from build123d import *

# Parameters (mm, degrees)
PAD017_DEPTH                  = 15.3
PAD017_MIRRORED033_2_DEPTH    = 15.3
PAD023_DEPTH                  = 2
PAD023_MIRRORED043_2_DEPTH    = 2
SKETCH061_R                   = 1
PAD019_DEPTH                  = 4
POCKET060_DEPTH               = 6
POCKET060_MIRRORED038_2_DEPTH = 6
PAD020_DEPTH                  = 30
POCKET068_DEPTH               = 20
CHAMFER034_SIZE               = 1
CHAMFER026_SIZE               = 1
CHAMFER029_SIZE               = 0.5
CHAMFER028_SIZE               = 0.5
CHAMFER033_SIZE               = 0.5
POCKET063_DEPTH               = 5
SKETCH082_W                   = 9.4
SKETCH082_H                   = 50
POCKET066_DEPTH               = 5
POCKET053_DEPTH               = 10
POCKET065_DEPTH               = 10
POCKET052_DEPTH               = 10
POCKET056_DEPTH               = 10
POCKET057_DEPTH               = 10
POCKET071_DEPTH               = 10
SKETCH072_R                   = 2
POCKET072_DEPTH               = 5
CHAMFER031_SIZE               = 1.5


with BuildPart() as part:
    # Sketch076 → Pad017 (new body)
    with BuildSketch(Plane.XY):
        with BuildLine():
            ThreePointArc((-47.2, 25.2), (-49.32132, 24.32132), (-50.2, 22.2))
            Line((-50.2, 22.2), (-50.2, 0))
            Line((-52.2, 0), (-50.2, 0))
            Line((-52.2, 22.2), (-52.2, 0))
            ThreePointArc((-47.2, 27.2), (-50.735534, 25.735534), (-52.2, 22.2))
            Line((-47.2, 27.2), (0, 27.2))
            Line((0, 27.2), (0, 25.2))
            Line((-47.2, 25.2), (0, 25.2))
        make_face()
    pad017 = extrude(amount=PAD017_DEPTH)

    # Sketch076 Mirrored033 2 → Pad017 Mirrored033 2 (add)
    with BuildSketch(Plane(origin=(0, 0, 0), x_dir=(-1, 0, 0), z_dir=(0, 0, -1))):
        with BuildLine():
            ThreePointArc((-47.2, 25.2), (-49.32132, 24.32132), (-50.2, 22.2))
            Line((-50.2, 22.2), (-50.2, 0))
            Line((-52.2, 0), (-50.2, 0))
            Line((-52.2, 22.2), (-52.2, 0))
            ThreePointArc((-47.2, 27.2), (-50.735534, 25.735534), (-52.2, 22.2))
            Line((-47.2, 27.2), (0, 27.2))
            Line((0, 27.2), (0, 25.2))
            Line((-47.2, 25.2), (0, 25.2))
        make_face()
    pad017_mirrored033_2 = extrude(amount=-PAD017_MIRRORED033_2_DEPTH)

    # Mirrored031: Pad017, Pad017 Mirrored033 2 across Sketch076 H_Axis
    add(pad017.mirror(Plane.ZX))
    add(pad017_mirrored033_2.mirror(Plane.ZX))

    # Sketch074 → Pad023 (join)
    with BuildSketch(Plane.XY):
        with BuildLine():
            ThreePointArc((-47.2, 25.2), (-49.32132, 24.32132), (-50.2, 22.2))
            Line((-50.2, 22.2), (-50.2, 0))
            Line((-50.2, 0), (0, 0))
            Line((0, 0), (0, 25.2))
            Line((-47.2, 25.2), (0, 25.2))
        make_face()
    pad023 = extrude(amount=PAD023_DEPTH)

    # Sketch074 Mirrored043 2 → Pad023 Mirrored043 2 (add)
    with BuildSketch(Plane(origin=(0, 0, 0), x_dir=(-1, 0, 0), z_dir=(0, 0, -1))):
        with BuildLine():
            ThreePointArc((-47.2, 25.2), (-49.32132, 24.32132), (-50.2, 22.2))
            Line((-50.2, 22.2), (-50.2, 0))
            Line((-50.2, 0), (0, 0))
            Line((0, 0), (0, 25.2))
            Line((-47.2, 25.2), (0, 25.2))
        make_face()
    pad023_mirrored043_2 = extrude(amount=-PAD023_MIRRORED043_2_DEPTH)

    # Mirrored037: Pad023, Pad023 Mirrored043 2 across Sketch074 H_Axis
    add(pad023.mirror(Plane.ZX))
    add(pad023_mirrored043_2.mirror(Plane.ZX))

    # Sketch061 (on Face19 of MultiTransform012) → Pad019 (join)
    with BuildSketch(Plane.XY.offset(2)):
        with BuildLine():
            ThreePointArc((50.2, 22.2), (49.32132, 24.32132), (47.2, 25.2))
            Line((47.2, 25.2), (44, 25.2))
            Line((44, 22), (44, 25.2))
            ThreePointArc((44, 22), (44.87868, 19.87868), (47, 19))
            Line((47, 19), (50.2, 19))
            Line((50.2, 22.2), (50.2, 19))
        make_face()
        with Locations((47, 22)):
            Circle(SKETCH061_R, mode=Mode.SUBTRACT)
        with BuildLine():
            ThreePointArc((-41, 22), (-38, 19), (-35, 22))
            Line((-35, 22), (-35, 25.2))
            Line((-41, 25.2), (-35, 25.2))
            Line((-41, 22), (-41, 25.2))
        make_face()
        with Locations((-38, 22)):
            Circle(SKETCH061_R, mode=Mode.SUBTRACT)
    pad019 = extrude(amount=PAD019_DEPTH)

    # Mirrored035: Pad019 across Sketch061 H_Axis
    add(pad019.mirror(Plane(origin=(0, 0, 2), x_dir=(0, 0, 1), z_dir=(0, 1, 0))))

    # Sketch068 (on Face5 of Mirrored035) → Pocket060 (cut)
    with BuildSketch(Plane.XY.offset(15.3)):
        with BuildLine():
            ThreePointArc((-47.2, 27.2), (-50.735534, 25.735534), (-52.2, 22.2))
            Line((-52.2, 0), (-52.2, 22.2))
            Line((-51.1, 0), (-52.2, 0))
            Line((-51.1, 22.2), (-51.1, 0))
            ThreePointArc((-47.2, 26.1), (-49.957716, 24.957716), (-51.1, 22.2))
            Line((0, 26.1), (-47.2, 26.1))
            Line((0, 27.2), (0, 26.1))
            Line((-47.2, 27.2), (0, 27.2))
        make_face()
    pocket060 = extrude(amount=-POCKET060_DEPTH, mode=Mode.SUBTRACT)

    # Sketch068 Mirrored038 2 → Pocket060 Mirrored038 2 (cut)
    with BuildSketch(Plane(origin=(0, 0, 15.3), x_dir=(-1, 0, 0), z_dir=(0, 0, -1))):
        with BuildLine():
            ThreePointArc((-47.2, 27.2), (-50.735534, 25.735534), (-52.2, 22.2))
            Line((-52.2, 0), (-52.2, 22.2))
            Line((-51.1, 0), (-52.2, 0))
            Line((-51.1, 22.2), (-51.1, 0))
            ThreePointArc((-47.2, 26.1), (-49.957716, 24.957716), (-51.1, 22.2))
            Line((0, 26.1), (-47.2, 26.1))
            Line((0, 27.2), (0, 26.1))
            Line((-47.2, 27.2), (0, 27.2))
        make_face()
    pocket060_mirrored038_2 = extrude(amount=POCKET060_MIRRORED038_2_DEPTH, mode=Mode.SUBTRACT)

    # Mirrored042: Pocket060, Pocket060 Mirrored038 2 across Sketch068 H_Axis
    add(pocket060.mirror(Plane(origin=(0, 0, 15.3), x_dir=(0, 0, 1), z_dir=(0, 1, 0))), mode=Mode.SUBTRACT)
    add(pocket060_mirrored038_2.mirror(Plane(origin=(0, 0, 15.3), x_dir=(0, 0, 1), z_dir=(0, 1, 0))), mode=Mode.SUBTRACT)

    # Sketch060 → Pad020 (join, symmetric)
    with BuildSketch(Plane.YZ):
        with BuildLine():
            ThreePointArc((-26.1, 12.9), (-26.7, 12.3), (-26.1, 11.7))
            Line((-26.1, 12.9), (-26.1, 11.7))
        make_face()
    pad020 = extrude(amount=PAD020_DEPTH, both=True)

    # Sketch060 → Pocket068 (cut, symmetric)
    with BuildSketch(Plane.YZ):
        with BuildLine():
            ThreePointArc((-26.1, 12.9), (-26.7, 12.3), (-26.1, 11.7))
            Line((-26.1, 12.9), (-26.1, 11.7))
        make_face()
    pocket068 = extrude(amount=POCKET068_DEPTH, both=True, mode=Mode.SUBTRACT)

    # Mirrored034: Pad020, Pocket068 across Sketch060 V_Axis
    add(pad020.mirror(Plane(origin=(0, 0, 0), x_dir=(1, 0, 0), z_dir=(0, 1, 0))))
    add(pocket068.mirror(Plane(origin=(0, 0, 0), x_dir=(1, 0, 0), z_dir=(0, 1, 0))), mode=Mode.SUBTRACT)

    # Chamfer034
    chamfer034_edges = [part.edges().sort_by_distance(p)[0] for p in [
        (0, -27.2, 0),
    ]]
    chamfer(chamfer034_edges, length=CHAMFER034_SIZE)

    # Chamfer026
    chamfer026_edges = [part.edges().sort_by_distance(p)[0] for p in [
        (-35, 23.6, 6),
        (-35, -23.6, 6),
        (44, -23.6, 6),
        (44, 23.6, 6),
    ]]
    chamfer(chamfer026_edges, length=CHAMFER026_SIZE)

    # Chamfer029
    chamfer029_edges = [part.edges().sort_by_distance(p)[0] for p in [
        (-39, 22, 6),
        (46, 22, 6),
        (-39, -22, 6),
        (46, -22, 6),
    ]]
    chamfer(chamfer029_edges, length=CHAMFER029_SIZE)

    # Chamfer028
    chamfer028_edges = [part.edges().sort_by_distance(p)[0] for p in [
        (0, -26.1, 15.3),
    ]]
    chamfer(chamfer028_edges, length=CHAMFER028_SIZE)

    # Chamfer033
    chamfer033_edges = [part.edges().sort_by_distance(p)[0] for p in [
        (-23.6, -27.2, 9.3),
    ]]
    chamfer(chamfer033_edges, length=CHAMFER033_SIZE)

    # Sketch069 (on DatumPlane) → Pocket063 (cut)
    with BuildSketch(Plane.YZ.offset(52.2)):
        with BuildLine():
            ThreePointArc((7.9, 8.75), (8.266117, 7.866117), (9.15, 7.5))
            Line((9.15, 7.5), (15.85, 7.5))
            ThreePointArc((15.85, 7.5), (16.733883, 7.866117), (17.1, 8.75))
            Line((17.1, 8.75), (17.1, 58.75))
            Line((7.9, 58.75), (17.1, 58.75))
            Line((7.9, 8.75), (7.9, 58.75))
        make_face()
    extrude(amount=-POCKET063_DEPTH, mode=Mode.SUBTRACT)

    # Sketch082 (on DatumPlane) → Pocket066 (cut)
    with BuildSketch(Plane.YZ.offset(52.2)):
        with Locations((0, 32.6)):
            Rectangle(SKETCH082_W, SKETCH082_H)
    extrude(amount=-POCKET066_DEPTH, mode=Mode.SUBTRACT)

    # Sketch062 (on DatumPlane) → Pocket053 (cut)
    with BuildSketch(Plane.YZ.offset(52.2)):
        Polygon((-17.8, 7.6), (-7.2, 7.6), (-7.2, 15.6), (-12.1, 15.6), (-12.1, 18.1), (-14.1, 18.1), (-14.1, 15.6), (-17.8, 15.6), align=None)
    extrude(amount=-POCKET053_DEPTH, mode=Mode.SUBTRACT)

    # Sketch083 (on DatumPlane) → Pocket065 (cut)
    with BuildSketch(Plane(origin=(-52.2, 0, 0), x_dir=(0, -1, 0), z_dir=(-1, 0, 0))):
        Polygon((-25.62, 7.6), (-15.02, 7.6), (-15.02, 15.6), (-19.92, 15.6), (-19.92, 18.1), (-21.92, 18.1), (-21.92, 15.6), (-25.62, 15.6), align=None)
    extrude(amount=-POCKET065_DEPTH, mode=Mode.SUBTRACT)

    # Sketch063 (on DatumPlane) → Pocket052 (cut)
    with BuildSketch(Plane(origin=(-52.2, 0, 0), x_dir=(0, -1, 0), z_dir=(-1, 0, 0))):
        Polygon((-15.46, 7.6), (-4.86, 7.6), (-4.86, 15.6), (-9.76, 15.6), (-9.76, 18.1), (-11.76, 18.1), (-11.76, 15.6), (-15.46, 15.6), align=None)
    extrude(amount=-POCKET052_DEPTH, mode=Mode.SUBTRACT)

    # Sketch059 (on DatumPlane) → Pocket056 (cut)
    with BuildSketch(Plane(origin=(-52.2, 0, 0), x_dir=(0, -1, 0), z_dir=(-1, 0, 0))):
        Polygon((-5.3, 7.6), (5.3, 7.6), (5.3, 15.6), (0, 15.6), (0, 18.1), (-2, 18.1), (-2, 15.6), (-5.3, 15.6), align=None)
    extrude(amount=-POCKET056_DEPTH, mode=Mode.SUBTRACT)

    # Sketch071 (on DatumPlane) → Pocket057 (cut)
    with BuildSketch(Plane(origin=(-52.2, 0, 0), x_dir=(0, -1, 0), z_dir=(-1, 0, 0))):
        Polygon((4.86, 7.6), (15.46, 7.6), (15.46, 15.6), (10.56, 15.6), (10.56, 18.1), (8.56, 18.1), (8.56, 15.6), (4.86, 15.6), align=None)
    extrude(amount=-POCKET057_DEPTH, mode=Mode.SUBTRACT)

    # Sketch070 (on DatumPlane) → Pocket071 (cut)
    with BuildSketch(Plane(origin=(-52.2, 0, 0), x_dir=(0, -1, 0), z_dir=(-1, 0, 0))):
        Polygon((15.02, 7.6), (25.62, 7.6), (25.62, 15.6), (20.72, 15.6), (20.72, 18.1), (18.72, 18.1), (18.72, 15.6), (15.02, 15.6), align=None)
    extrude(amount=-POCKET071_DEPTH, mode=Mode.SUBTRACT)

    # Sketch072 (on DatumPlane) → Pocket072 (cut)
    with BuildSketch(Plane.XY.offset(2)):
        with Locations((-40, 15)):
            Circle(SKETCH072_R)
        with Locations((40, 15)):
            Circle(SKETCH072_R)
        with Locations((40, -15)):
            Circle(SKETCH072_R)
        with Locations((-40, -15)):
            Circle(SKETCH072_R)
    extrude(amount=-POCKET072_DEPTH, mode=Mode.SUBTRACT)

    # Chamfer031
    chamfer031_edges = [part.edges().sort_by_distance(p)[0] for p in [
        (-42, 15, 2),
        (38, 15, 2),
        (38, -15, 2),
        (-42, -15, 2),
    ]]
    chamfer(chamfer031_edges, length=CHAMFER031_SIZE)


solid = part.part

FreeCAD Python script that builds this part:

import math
import FreeCAD as App
import Part
import Sketcher

V = App.Vector


def edges_at(feature, points):
    """Names of the edges that pass closest to the given points."""
    edges = feature.Shape.Edges
    near = lambda p: min(range(len(edges)), key=lambda i: edges[i].distToShape(Part.Vertex(*p))[0])
    return sorted({f"Edge{near(p) + 1}" for p in points})


def add_polygon(sketch, points):
    """Adds a closed chain of lines whose ends are joined by coincident constraints."""
    first, n = sketch.GeometryCount, len(points)
    for a, b in zip(points, points[1:] + points[:1]):
        sketch.addGeometry(Part.LineSegment(App.Vector(*a, 0), App.Vector(*b, 0)), False)
    for i in range(n):
        sketch.addConstraint(Sketcher.Constraint("Coincident", first + i, 2, first + (i + 1) % n, 1))

doc = App.newDocument("Part")
body = doc.addObject("PartDesign::Body", "Body")

# Sketch on XY plane
sketch1 = doc.addObject("Sketcher::SketchObject", "Sketch")
body.addObject(sketch1)
sketch1.AttachmentSupport = (doc.XY_Plane, [""])
sketch1.MapMode = "FlatFace"
sketch1.addGeometry([
    Part.ArcOfCircle(Part.Circle(V(-47.2, 22.2, 0), V(0, 0, 1), 3), math.radians(90), math.radians(180)),  # 0
    Part.LineSegment(V(-47.2, 25.2, 0), V(0, 25.2, 0)),  # 1
    Part.LineSegment(V(0, 25.2, 0), V(0, 27.2, 0)),  # 2
    Part.LineSegment(V(0, 27.2, 0), V(-47.2, 27.2, 0)),  # 3
    Part.ArcOfCircle(Part.Circle(V(-47.2, 22.2, 0), V(0, 0, 1), 5), math.radians(90), math.radians(180)),  # 4
    Part.LineSegment(V(-52.2, 22.2, 0), V(-52.2, 0, 0)),  # 5
    Part.LineSegment(V(-52.2, 0, 0), V(-50.2, 0, 0)),  # 6
    Part.LineSegment(V(-50.2, 0, 0), V(-50.2, 22.2, 0)),  # 7
], False)
sketch1.addConstraint([
    Sketcher.Constraint("Tangent", 0, 1, 1, 1),
    Sketcher.Constraint("Coincident", 1, 2, 2, 1),
    Sketcher.Constraint("Coincident", 2, 2, 3, 1),
    Sketcher.Constraint("Tangent", 3, 2, 4, 1),
    Sketcher.Constraint("Tangent", 4, 2, 5, 1),
    Sketcher.Constraint("Coincident", 5, 2, 6, 1),
    Sketcher.Constraint("Coincident", 6, 2, 7, 1),
    Sketcher.Constraint("Tangent", 7, 2, 0, 2),
    Sketcher.Constraint("Horizontal", 1),
    Sketcher.Constraint("Vertical", 2),
    Sketcher.Constraint("Horizontal", 3),
    Sketcher.Constraint("Vertical", 5),
    Sketcher.Constraint("Horizontal", 6),
    Sketcher.Constraint("Vertical", 7),
    Sketcher.Constraint("Coincident", 4, 3, 0, 3),
    Sketcher.Constraint("PointOnObject", 1, 2, -2),
    Sketcher.Constraint("PointOnObject", 5, 2, -1),
    Sketcher.Constraint("Radius", 0, 3.000001),
    Sketcher.Constraint("Radius", 4, 5.0),
    Sketcher.Constraint("DistanceX", 1, 1, 1, 2, 47.2),
    Sketcher.Constraint("DistanceY", 5, 2, 5, 1, 22.2),
])
pad1 = doc.addObject("PartDesign::Pad", "Pad")
body.addObject(pad1)
pad1.Profile = sketch1
pad1.Length = 15.3

# Sketch on XY plane
sketch2 = doc.addObject("Sketcher::SketchObject", "Sketch001")
body.addObject(sketch2)
sketch2.AttachmentSupport = (doc.XY_Plane, [""])
sketch2.MapMode = "FlatFace"
sketch2.addGeometry([
    Part.ArcOfCircle(Part.Circle(V(47.2, 22.2, 0), V(0, 0, 1), 3), math.radians(0), math.radians(90)),  # 0
    Part.LineSegment(V(47.2, 25.2, 0), V(0, 25.2, 0)),  # 1
    Part.LineSegment(V(0, 25.2, 0), V(0, 27.2, 0)),  # 2
    Part.LineSegment(V(0, 27.2, 0), V(47.2, 27.2, 0)),  # 3
    Part.ArcOfCircle(Part.Circle(V(47.2, 22.2, 0), V(0, 0, 1), 5), math.radians(0), math.radians(90)),  # 4
    Part.LineSegment(V(52.2, 22.2, 0), V(52.2, 0, 0)),  # 5
    Part.LineSegment(V(52.2, 0, 0), V(50.2, 0, 0)),  # 6
    Part.LineSegment(V(50.2, 0, 0), V(50.2, 22.2, 0)),  # 7
], False)
sketch2.addConstraint([
    Sketcher.Constraint("Tangent", 0, 2, 1, 1),
    Sketcher.Constraint("Coincident", 1, 2, 2, 1),
    Sketcher.Constraint("Coincident", 2, 2, 3, 1),
    Sketcher.Constraint("Tangent", 3, 2, 4, 2),
    Sketcher.Constraint("Tangent", 4, 1, 5, 1),
    Sketcher.Constraint("Coincident", 5, 2, 6, 1),
    Sketcher.Constraint("Coincident", 6, 2, 7, 1),
    Sketcher.Constraint("Tangent", 7, 2, 0, 1),
    Sketcher.Constraint("Horizontal", 1),
    Sketcher.Constraint("Vertical", 2),
    Sketcher.Constraint("Horizontal", 3),
    Sketcher.Constraint("Vertical", 5),
    Sketcher.Constraint("Horizontal", 6),
    Sketcher.Constraint("Vertical", 7),
    Sketcher.Constraint("Coincident", 4, 3, 0, 3),
    Sketcher.Constraint("PointOnObject", 1, 2, -2),
    Sketcher.Constraint("PointOnObject", 5, 2, -1),
    Sketcher.Constraint("Radius", 0, 3.000001),
    Sketcher.Constraint("Radius", 4, 5.0),
    Sketcher.Constraint("DistanceX", 1, 2, 1, 1, 47.2),
    Sketcher.Constraint("DistanceY", 5, 2, 5, 1, 22.2),
])
pad2 = doc.addObject("PartDesign::Pad", "Pad001")
body.addObject(pad2)
pad2.Profile = sketch2
pad2.Length = 15.3
doc.recompute()

mirrored = doc.addObject("PartDesign::Mirrored", "Mirrored")
body.addObject(mirrored)
mirrored.Originals = [pad1, pad2]
mirrored.MirrorPlane = (doc.XZ_Plane, [""])
body.Tip = mirrored

# Sketch on XY plane
sketch3 = doc.addObject("Sketcher::SketchObject", "Sketch002")
body.addObject(sketch3)
sketch3.AttachmentSupport = (doc.XY_Plane, [""])
sketch3.MapMode = "FlatFace"
sketch3.addGeometry([
    Part.ArcOfCircle(Part.Circle(V(-47.2, 22.2, 0), V(0, 0, 1), 3), math.radians(90), math.radians(180)),  # 0
    Part.LineSegment(V(-50.2, 22.2, 0), V(-50.2, 0, 0)),  # 1
    Part.LineSegment(V(-50.2, 0, 0), V(0, 0, 0)),  # 2
    Part.LineSegment(V(0, 0, 0), V(0, 25.2, 0)),  # 3
    Part.LineSegment(V(0, 25.2, 0), V(-47.2, 25.2, 0)),  # 4
], False)
sketch3.addConstraint([
    Sketcher.Constraint("Tangent", 0, 2, 1, 1),
    Sketcher.Constraint("Coincident", 1, 2, 2, 1),
    Sketcher.Constraint("Coincident", 2, 2, 3, 1),
    Sketcher.Constraint("Coincident", 3, 2, 4, 1),
    Sketcher.Constraint("Tangent", 4, 2, 0, 1),
    Sketcher.Constraint("Vertical", 1),
    Sketcher.Constraint("Horizontal", 2),
    Sketcher.Constraint("Vertical", 3),
    Sketcher.Constraint("Horizontal", 4),
    Sketcher.Constraint("Coincident", 2, 2, -1, 1),
    Sketcher.Constraint("Radius", 0, 3.000001),
    Sketcher.Constraint("DistanceX", 2, 1, 2, 2, 50.2),
    Sketcher.Constraint("DistanceY", 1, 2, 1, 1, 22.2),
])
pad3 = doc.addObject("PartDesign::Pad", "Pad002")
body.addObject(pad3)
pad3.Profile = sketch3
pad3.Length = 2

# Sketch on XY plane
sketch4 = doc.addObject("Sketcher::SketchObject", "Sketch003")
body.addObject(sketch4)
sketch4.AttachmentSupport = (doc.XY_Plane, [""])
sketch4.MapMode = "FlatFace"
sketch4.addGeometry([
    Part.ArcOfCircle(Part.Circle(V(47.2, 22.2, 0), V(0, 0, 1), 3), math.radians(0), math.radians(90)),  # 0
    Part.LineSegment(V(50.2, 22.2, 0), V(50.2, 0, 0)),  # 1
    Part.LineSegment(V(50.2, 0, 0), V(0, 0, 0)),  # 2
    Part.LineSegment(V(0, 0, 0), V(0, 25.2, 0)),  # 3
    Part.LineSegment(V(0, 25.2, 0), V(47.2, 25.2, 0)),  # 4
], False)
sketch4.addConstraint([
    Sketcher.Constraint("Tangent", 0, 1, 1, 1),
    Sketcher.Constraint("Coincident", 1, 2, 2, 1),
    Sketcher.Constraint("Coincident", 2, 2, 3, 1),
    Sketcher.Constraint("Coincident", 3, 2, 4, 1),
    Sketcher.Constraint("Tangent", 4, 2, 0, 2),
    Sketcher.Constraint("Vertical", 1),
    Sketcher.Constraint("Horizontal", 2),
    Sketcher.Constraint("Vertical", 3),
    Sketcher.Constraint("Horizontal", 4),
    Sketcher.Constraint("Coincident", 2, 2, -1, 1),
    Sketcher.Constraint("Radius", 0, 3.000001),
    Sketcher.Constraint("DistanceX", 2, 2, 2, 1, 50.2),
    Sketcher.Constraint("DistanceY", 1, 2, 1, 1, 22.2),
])
pad4 = doc.addObject("PartDesign::Pad", "Pad003")
body.addObject(pad4)
pad4.Profile = sketch4
pad4.Length = 2
doc.recompute()

mirrored2 = doc.addObject("PartDesign::Mirrored", "Mirrored001")
body.addObject(mirrored2)
mirrored2.Originals = [pad3, pad4]
mirrored2.MirrorPlane = (doc.XZ_Plane, [""])
body.Tip = mirrored2

# Sketch on XY plane
sketch5 = doc.addObject("Sketcher::SketchObject", "Sketch004")
body.addObject(sketch5)
sketch5.AttachmentSupport = (doc.XY_Plane, [""])
sketch5.MapMode = "FlatFace"
sketch5.AttachmentOffset = App.Placement(V(0, 0, 2), App.Rotation())
sketch5.addGeometry([
    Part.ArcOfCircle(Part.Circle(V(47.2, 22.2, 0), V(0, 0, 1), 3), math.radians(0), math.radians(90)),  # 0
    Part.LineSegment(V(47.2, 25.2, 0), V(44, 25.2, 0)),  # 1
    Part.LineSegment(V(44, 25.2, 0), V(44, 22, 0)),  # 2
    Part.ArcOfCircle(Part.Circle(V(47, 22, 0), V(0, 0, 1), 3), math.radians(-180), math.radians(-90)),  # 3
    Part.LineSegment(V(47, 19, 0), V(50.2, 19, 0)),  # 4
    Part.LineSegment(V(50.2, 19, 0), V(50.2, 22.2, 0)),  # 5
    Part.Circle(V(47, 22, 0), V(0, 0, 1), 1),  # 6
    Part.ArcOfCircle(Part.Circle(V(-38, 22, 0), V(0, 0, 1), 3), math.radians(180), math.radians(360)),  # 7
    Part.LineSegment(V(-35, 22, 0), V(-35, 25.2, 0)),  # 8
    Part.LineSegment(V(-35, 25.2, 0), V(-41, 25.2, 0)),  # 9
    Part.LineSegment(V(-41, 25.2, 0), V(-41, 22, 0)),  # 10
    Part.Circle(V(-38, 22, 0), V(0, 0, 1), 1),  # 11
], False)
sketch5.addConstraint([
    Sketcher.Constraint("Tangent", 0, 2, 1, 1),
    Sketcher.Constraint("Coincident", 1, 2, 2, 1),
    Sketcher.Constraint("Tangent", 2, 2, 3, 1),
    Sketcher.Constraint("Tangent", 3, 2, 4, 1),
    Sketcher.Constraint("Coincident", 4, 2, 5, 1),
    Sketcher.Constraint("Tangent", 5, 2, 0, 1),
    Sketcher.Constraint("Tangent", 7, 2, 8, 1),
    Sketcher.Constraint("Coincident", 8, 2, 9, 1),
    Sketcher.Constraint("Coincident", 9, 2, 10, 1),
    Sketcher.Constraint("Tangent", 10, 2, 7, 1),
    Sketcher.Constraint("Horizontal", 1),
    Sketcher.Constraint("Vertical", 2),
    Sketcher.Constraint("Horizontal", 4),
    Sketcher.Constraint("Vertical", 5),
    Sketcher.Constraint("Vertical", 8),
    Sketcher.Constraint("Horizontal", 9),
    Sketcher.Constraint("Vertical", 10),
    Sketcher.Constraint("Coincident", 6, 3, 3, 3),
    Sketcher.Constraint("Coincident", 11, 3, 7, 3),
    Sketcher.Constraint("Equal", 0, 3),
    Sketcher.Constraint("Equal", 3, 7),
    Sketcher.Constraint("Equal", 6, 11),
    Sketcher.Constraint("Horizontal", 6, 3, 7, 3),
    Sketcher.Constraint("Horizontal", 1, 2, 8, 2),
    Sketcher.Constraint("Equal", 4, 2),
    Sketcher.Constraint("Diameter", 6, 2.0),
    Sketcher.Constraint("Radius", 0, 3.000001),
    Sketcher.Constraint("DistanceX", 1, 2, 1, 1, 3.2),
    Sketcher.Constraint("DistanceX", -1, 1, 3, 3, 47.000001),
    Sketcher.Constraint("DistanceY", -1, 1, 3, 3, 22.000001),
    Sketcher.Constraint("DistanceX", 7, 3, -1, 1, 38.0),
])
pad5 = doc.addObject("PartDesign::Pad", "Pad004")
body.addObject(pad5)
pad5.Profile = sketch5
pad5.Length = 4
doc.recompute()

mirrored3 = doc.addObject("PartDesign::Mirrored", "Mirrored002")
body.addObject(mirrored3)
mirrored3.Originals = [pad5]
mirrored3.MirrorPlane = (doc.XZ_Plane, [""])
body.Tip = mirrored3

# Sketch on XY plane
sketch6 = doc.addObject("Sketcher::SketchObject", "Sketch005")
body.addObject(sketch6)
sketch6.AttachmentSupport = (doc.XY_Plane, [""])
sketch6.MapMode = "FlatFace"
sketch6.AttachmentOffset = App.Placement(V(0, 0, 15.3), App.Rotation())
sketch6.addGeometry([
    Part.ArcOfCircle(Part.Circle(V(-47.2, 22.2, 0), V(0, 0, 1), 5), math.radians(90), math.radians(180)),  # 0
    Part.LineSegment(V(-52.2, 22.2, 0), V(-52.2, 0, 0)),  # 1
    Part.LineSegment(V(-52.2, 0, 0), V(-51.1, 0, 0)),  # 2
    Part.LineSegment(V(-51.1, 0, 0), V(-51.1, 22.2, 0)),  # 3
    Part.ArcOfCircle(Part.Circle(V(-47.2, 22.2, 0), V(0, 0, 1), 3.9), math.radians(90), math.radians(180)),  # 4
    Part.LineSegment(V(-47.2, 26.1, 0), V(0, 26.1, 0)),  # 5
    Part.LineSegment(V(0, 26.1, 0), V(0, 27.2, 0)),  # 6
    Part.LineSegment(V(0, 27.2, 0), V(-47.2, 27.2, 0)),  # 7
], False)
sketch6.addConstraint([
    Sketcher.Constraint("Tangent", 0, 2, 1, 1),
    Sketcher.Constraint("Coincident", 1, 2, 2, 1),
    Sketcher.Constraint("Coincident", 2, 2, 3, 1),
    Sketcher.Constraint("Tangent", 3, 2, 4, 2),
    Sketcher.Constraint("Tangent", 4, 1, 5, 1),
    Sketcher.Constraint("Coincident", 5, 2, 6, 1),
    Sketcher.Constraint("Coincident", 6, 2, 7, 1),
    Sketcher.Constraint("Tangent", 7, 2, 0, 1),
    Sketcher.Constraint("Vertical", 1),
    Sketcher.Constraint("Horizontal", 2),
    Sketcher.Constraint("Vertical", 3),
    Sketcher.Constraint("Horizontal", 5),
    Sketcher.Constraint("Vertical", 6),
    Sketcher.Constraint("Horizontal", 7),
    Sketcher.Constraint("Coincident", 4, 3, 0, 3),
    Sketcher.Constraint("PointOnObject", 1, 2, -1),
    Sketcher.Constraint("PointOnObject", 5, 2, -2),
    Sketcher.Constraint("Radius", 0, 5.0),
    Sketcher.Constraint("Radius", 4, 3.900002),
    Sketcher.Constraint("DistanceX", 5, 1, 5, 2, 47.2),
    Sketcher.Constraint("DistanceY", 1, 2, 1, 1, 22.2),
])
pocket1 = doc.addObject("PartDesign::Pocket", "Pocket")
body.addObject(pocket1)
pocket1.Profile = sketch6
pocket1.Length = 6

# Sketch on XY plane
sketch7 = doc.addObject("Sketcher::SketchObject", "Sketch006")
body.addObject(sketch7)
sketch7.AttachmentSupport = (doc.XY_Plane, [""])
sketch7.MapMode = "FlatFace"
sketch7.AttachmentOffset = App.Placement(V(0, 0, 15.3), App.Rotation())
sketch7.addGeometry([
    Part.ArcOfCircle(Part.Circle(V(47.2, 22.2, 0), V(0, 0, 1), 5), math.radians(0), math.radians(90)),  # 0
    Part.LineSegment(V(52.2, 22.2, 0), V(52.2, 0, 0)),  # 1
    Part.LineSegment(V(52.2, 0, 0), V(51.1, 0, 0)),  # 2
    Part.LineSegment(V(51.1, 0, 0), V(51.1, 22.2, 0)),  # 3
    Part.ArcOfCircle(Part.Circle(V(47.2, 22.2, 0), V(0, 0, 1), 3.9), math.radians(0), math.radians(90)),  # 4
    Part.LineSegment(V(47.2, 26.1, 0), V(0, 26.1, 0)),  # 5
    Part.LineSegment(V(0, 26.1, 0), V(0, 27.2, 0)),  # 6
    Part.LineSegment(V(0, 27.2, 0), V(47.2, 27.2, 0)),  # 7
], False)
sketch7.addConstraint([
    Sketcher.Constraint("Tangent", 0, 1, 1, 1),
    Sketcher.Constraint("Coincident", 1, 2, 2, 1),
    Sketcher.Constraint("Coincident", 2, 2, 3, 1),
    Sketcher.Constraint("Tangent", 3, 2, 4, 1),
    Sketcher.Constraint("Tangent", 4, 2, 5, 1),
    Sketcher.Constraint("Coincident", 5, 2, 6, 1),
    Sketcher.Constraint("Coincident", 6, 2, 7, 1),
    Sketcher.Constraint("Tangent", 7, 2, 0, 2),
    Sketcher.Constraint("Vertical", 1),
    Sketcher.Constraint("Horizontal", 2),
    Sketcher.Constraint("Vertical", 3),
    Sketcher.Constraint("Horizontal", 5),
    Sketcher.Constraint("Vertical", 6),
    Sketcher.Constraint("Horizontal", 7),
    Sketcher.Constraint("Coincident", 4, 3, 0, 3),
    Sketcher.Constraint("PointOnObject", 1, 2, -1),
    Sketcher.Constraint("PointOnObject", 5, 2, -2),
    Sketcher.Constraint("Radius", 0, 5.0),
    Sketcher.Constraint("Radius", 4, 3.900002),
    Sketcher.Constraint("DistanceX", 5, 2, 5, 1, 47.2),
    Sketcher.Constraint("DistanceY", 1, 2, 1, 1, 22.2),
])
pocket2 = doc.addObject("PartDesign::Pocket", "Pocket001")
body.addObject(pocket2)
pocket2.Profile = sketch7
pocket2.Length = 6
doc.recompute()

mirrored4 = doc.addObject("PartDesign::Mirrored", "Mirrored003")
body.addObject(mirrored4)
mirrored4.Originals = [pocket1, pocket2]
mirrored4.MirrorPlane = (doc.XZ_Plane, [""])
body.Tip = mirrored4

# Sketch on YZ plane
sketch8 = doc.addObject("Sketcher::SketchObject", "Sketch007")
body.addObject(sketch8)
sketch8.AttachmentSupport = (doc.YZ_Plane, [""])
sketch8.MapMode = "FlatFace"
sketch8.addGeometry([
    Part.ArcOfCircle(Part.Circle(V(-26.1, 12.3, 0), V(0, 0, 1), 0.6), math.radians(90), math.radians(270)),
    Part.LineSegment(V(-26.1, 11.7, 0), V(-26.1, 12.9, 0)),
], False)
sketch8.addConstraint([
    Sketcher.Constraint("Coincident", 0, 1, 1, 2),
    Sketcher.Constraint("Coincident", 1, 1, 0, 2),
    Sketcher.Constraint("Vertical", 1),
    Sketcher.Constraint("Radius", 0, 0.6),
    Sketcher.Constraint("DistanceX", 0, 3, -1, 1, 26.1),
    Sketcher.Constraint("DistanceY", -1, 1, 0, 3, 12.3),
    Sketcher.Constraint("DistanceX", 0, 1, -1, 1, 26.1),
])
pad6 = doc.addObject("PartDesign::Pad", "Pad005")
body.addObject(pad6)
pad6.Profile = sketch8
pad6.Length = 60
pad6.Midplane = True

# Sketch on YZ plane
sketch9 = doc.addObject("Sketcher::SketchObject", "Sketch008")
body.addObject(sketch9)
sketch9.AttachmentSupport = (doc.YZ_Plane, [""])
sketch9.MapMode = "FlatFace"
sketch9.addGeometry([
    Part.ArcOfCircle(Part.Circle(V(-26.1, 12.3, 0), V(0, 0, 1), 0.6), math.radians(90), math.radians(270)),
    Part.LineSegment(V(-26.1, 11.7, 0), V(-26.1, 12.9, 0)),
], False)
sketch9.addConstraint([
    Sketcher.Constraint("Coincident", 0, 1, 1, 2),
    Sketcher.Constraint("Coincident", 1, 1, 0, 2),
    Sketcher.Constraint("Vertical", 1),
    Sketcher.Constraint("Radius", 0, 0.6),
    Sketcher.Constraint("DistanceX", 0, 3, -1, 1, 26.1),
    Sketcher.Constraint("DistanceY", -1, 1, 0, 3, 12.3),
    Sketcher.Constraint("DistanceX", 0, 1, -1, 1, 26.1),
])
pocket3 = doc.addObject("PartDesign::Pocket", "Pocket002")
body.addObject(pocket3)
pocket3.Profile = sketch9
pocket3.Length = 40
pocket3.Midplane = True
doc.recompute()

mirrored5 = doc.addObject("PartDesign::Mirrored", "Mirrored004")
body.addObject(mirrored5)
mirrored5.Originals = [pad6, pocket3]
mirrored5.MirrorPlane = (doc.XZ_Plane, [""])
body.Tip = mirrored5
doc.recompute()

chamfer = doc.addObject("PartDesign::Chamfer", "Chamfer")
body.addObject(chamfer)
chamfer.Base = (mirrored5, edges_at(mirrored5, [(0, -27.2, 0)]))
chamfer.Size = 1
doc.recompute()

chamfer2 = doc.addObject("PartDesign::Chamfer", "Chamfer001")
body.addObject(chamfer2)
chamfer2.Base = (chamfer, edges_at(chamfer, [
    (-35, 23.6, 6),
    (-35, -23.6, 6),
    (44, -23.6, 6),
    (44, 23.6, 6),
]))
chamfer2.Size = 1
doc.recompute()

chamfer3 = doc.addObject("PartDesign::Chamfer", "Chamfer002")
body.addObject(chamfer3)
chamfer3.Base = (chamfer2, edges_at(chamfer2, [
    (-39, 22, 6),
    (46, 22, 6),
    (-39, -22, 6),
    (46, -22, 6),
]))
chamfer3.Size = 0.5
doc.recompute()

chamfer4 = doc.addObject("PartDesign::Chamfer", "Chamfer003")
body.addObject(chamfer4)
chamfer4.Base = (chamfer3, edges_at(chamfer3, [(0, -26.1, 15.3)]))
chamfer4.Size = 0.5
doc.recompute()

chamfer5 = doc.addObject("PartDesign::Chamfer", "Chamfer004")
body.addObject(chamfer5)
chamfer5.Base = (chamfer4, edges_at(chamfer4, [(0, -27.2, 9.3)]))
chamfer5.Size = 0.5

# Sketch on YZ plane
sketch10 = doc.addObject("Sketcher::SketchObject", "Sketch009")
body.addObject(sketch10)
sketch10.AttachmentSupport = (doc.YZ_Plane, [""])
sketch10.MapMode = "FlatFace"
sketch10.AttachmentOffset = App.Placement(V(0, 0, 52.2), App.Rotation())
sketch10.addGeometry([
    Part.ArcOfCircle(Part.Circle(V(9.2, 8.8, 0), V(0, 0, 1), 1.3), math.radians(-180), math.radians(-90)),  # 0
    Part.LineSegment(V(9.2, 7.5, 0), V(15.8, 7.5, 0)),  # 1
    Part.ArcOfCircle(Part.Circle(V(15.8, 8.8, 0), V(0, 0, 1), 1.3), math.radians(-90), math.radians(0)),  # 2
    Part.LineSegment(V(17.1, 8.8, 0), V(17.1, 58.8, 0)),  # 3
    Part.LineSegment(V(17.1, 58.8, 0), V(7.9, 58.8, 0)),  # 4
    Part.LineSegment(V(7.9, 58.8, 0), V(7.9, 8.8, 0)),  # 5
], False)
sketch10.addConstraint([
    Sketcher.Constraint("Tangent", 0, 2, 1, 1),
    Sketcher.Constraint("Tangent", 1, 2, 2, 1),
    Sketcher.Constraint("Tangent", 2, 2, 3, 1),
    Sketcher.Constraint("Coincident", 3, 2, 4, 1),
    Sketcher.Constraint("Coincident", 4, 2, 5, 1),
    Sketcher.Constraint("Tangent", 5, 2, 0, 1),
    Sketcher.Constraint("Horizontal", 1),
    Sketcher.Constraint("Vertical", 3),
    Sketcher.Constraint("Horizontal", 4),
    Sketcher.Constraint("Vertical", 5),
    Sketcher.Constraint("Equal", 0, 2),
    Sketcher.Constraint("DistanceY", 3, 1, 3, 2, 50.0),
    Sketcher.Constraint("Radius", 0, 1.250002),
    Sketcher.Constraint("DistanceX", 1, 1, 1, 2, 6.7),
    Sketcher.Constraint("DistanceY", -1, 1, 0, 2, 7.5),
    Sketcher.Constraint("DistanceX", -1, 1, 2, 2, 17.1),
])
pocket4 = doc.addObject("PartDesign::Pocket", "Pocket003")
body.addObject(pocket4)
pocket4.Profile = sketch10
pocket4.Length = 5

# Sketch on YZ plane
sketch11 = doc.addObject("Sketcher::SketchObject", "Sketch010")
body.addObject(sketch11)
sketch11.AttachmentSupport = (doc.YZ_Plane, [""])
sketch11.MapMode = "FlatFace"
sketch11.AttachmentOffset = App.Placement(V(0, 0, 52.2), App.Rotation())
add_polygon(sketch11, [(-5, 58), (-5, 8), (5, 8), (5, 58)])  # lines 0-3
sketch11.addConstraint([
    Sketcher.Constraint("Vertical", 0),
    Sketcher.Constraint("Horizontal", 1),
    Sketcher.Constraint("Vertical", 2),
    Sketcher.Constraint("Horizontal", 3),
    Sketcher.Constraint("DistanceY", 0, 2, 0, 1, 50.0),
    Sketcher.Constraint("DistanceX", 1, 1, 1, 2, 9.4),
    Sketcher.Constraint("DistanceX", 0, 2, -1, 1, 4.7),
    Sketcher.Constraint("DistanceY", -1, 1, 0, 2, 7.6),
])
pocket5 = doc.addObject("PartDesign::Pocket", "Pocket004")
body.addObject(pocket5)
pocket5.Profile = sketch11
pocket5.Length = 5

# Sketch on YZ plane
sketch12 = doc.addObject("Sketcher::SketchObject", "Sketch011")
body.addObject(sketch12)
sketch12.AttachmentSupport = (doc.YZ_Plane, [""])
sketch12.MapMode = "FlatFace"
sketch12.AttachmentOffset = App.Placement(V(0, 0, 52.2), App.Rotation())
add_polygon(sketch12, [(-17.8, 7.6), (-7.2, 7.6), (-7.2, 15.6), (-12.1, 15.6), (-12.1, 18.1), (-14.1, 18.1), (-14.1, 15.6), (-17.8, 15.6)])  # lines 0-7
sketch12.addConstraint([
    Sketcher.Constraint("Horizontal", 0),
    Sketcher.Constraint("Vertical", 1),
    Sketcher.Constraint("Horizontal", 2),
    Sketcher.Constraint("Vertical", 3),
    Sketcher.Constraint("Horizontal", 4),
    Sketcher.Constraint("Vertical", 5),
    Sketcher.Constraint("Horizontal", 6),
    Sketcher.Constraint("Vertical", 7),
    Sketcher.Constraint("Horizontal", 2, 2, 5, 2),
    Sketcher.Constraint("DistanceX", 4, 2, 4, 1, 2.0),
    Sketcher.Constraint("DistanceY", 1, 1, 1, 2, 8.0),
    Sketcher.Constraint("DistanceX", 0, 1, 0, 2, 10.6),
    Sketcher.Constraint("DistanceX", 2, 2, 2, 1, 4.9),
    Sketcher.Constraint("DistanceY", 3, 1, 3, 2, 2.5),
    Sketcher.Constraint("DistanceX", 0, 2, -1, 1, 7.2),
    Sketcher.Constraint("DistanceY", -1, 1, 0, 2, 7.6),
])
pocket6 = doc.addObject("PartDesign::Pocket", "Pocket005")
body.addObject(pocket6)
pocket6.Profile = sketch12
pocket6.Length = 10

# Sketch on YZ plane
sketch13 = doc.addObject("Sketcher::SketchObject", "Sketch012")
body.addObject(sketch13)
sketch13.AttachmentSupport = (doc.YZ_Plane, [""])
sketch13.MapMode = "FlatFace"
sketch13.AttachmentOffset = App.Placement(V(0, 0, -52.2), App.Rotation())
add_polygon(sketch13, [(25.6, 7.6), (15, 7.6), (15, 15.6), (19.9, 15.6), (19.9, 18.1), (21.9, 18.1), (21.9, 15.6), (25.6, 15.6)])  # lines 0-7
sketch13.addConstraint([
    Sketcher.Constraint("Horizontal", 0),
    Sketcher.Constraint("Vertical", 1),
    Sketcher.Constraint("Horizontal", 2),
    Sketcher.Constraint("Vertical", 3),
    Sketcher.Constraint("Horizontal", 4),
    Sketcher.Constraint("Vertical", 5),
    Sketcher.Constraint("Horizontal", 6),
    Sketcher.Constraint("Vertical", 7),
    Sketcher.Constraint("Horizontal", 2, 2, 5, 2),
    Sketcher.Constraint("DistanceX", 4, 1, 4, 2, 2.0),
    Sketcher.Constraint("DistanceY", 1, 1, 1, 2, 8.0),
    Sketcher.Constraint("DistanceX", 0, 2, 0, 1, 10.6),
    Sketcher.Constraint("DistanceX", 2, 1, 2, 2, 4.9),
    Sketcher.Constraint("DistanceY", 3, 1, 3, 2, 2.5),
    Sketcher.Constraint("DistanceY", -1, 1, 0, 2, 7.6),
    Sketcher.Constraint("DistanceX", -1, 1, 0, 2, 15.02),
])
pocket7 = doc.addObject("PartDesign::Pocket", "Pocket006")
body.addObject(pocket7)
pocket7.Profile = sketch13
pocket7.Length = 10
pocket7.Reversed = True

# Sketch on YZ plane
sketch14 = doc.addObject("Sketcher::SketchObject", "Sketch013")
body.addObject(sketch14)
sketch14.AttachmentSupport = (doc.YZ_Plane, [""])
sketch14.MapMode = "FlatFace"
sketch14.AttachmentOffset = App.Placement(V(0, 0, -52.2), App.Rotation())
add_polygon(sketch14, [(15.5, 7.6), (4.9, 7.6), (4.9, 15.6), (9.8, 15.6), (9.8, 18.1), (11.8, 18.1), (11.8, 15.6), (15.5, 15.6)])  # lines 0-7
sketch14.addConstraint([
    Sketcher.Constraint("Horizontal", 0),
    Sketcher.Constraint("Vertical", 1),
    Sketcher.Constraint("Horizontal", 2),
    Sketcher.Constraint("Vertical", 3),
    Sketcher.Constraint("Horizontal", 4),
    Sketcher.Constraint("Vertical", 5),
    Sketcher.Constraint("Horizontal", 6),
    Sketcher.Constraint("Vertical", 7),
    Sketcher.Constraint("Horizontal", 2, 2, 5, 2),
    Sketcher.Constraint("DistanceX", 4, 1, 4, 2, 2.0),
    Sketcher.Constraint("DistanceY", 1, 1, 1, 2, 8.0),
    Sketcher.Constraint("DistanceX", 0, 2, 0, 1, 10.6),
    Sketcher.Constraint("DistanceX", 2, 1, 2, 2, 4.9),
    Sketcher.Constraint("DistanceY", 3, 1, 3, 2, 2.5),
    Sketcher.Constraint("DistanceY", -1, 1, 0, 2, 7.6),
    Sketcher.Constraint("DistanceX", -1, 1, 0, 2, 4.86),
])
pocket8 = doc.addObject("PartDesign::Pocket", "Pocket007")
body.addObject(pocket8)
pocket8.Profile = sketch14
pocket8.Length = 10
pocket8.Reversed = True

# Sketch on YZ plane
sketch15 = doc.addObject("Sketcher::SketchObject", "Sketch014")
body.addObject(sketch15)
sketch15.AttachmentSupport = (doc.YZ_Plane, [""])
sketch15.MapMode = "FlatFace"
sketch15.AttachmentOffset = App.Placement(V(0, 0, -52.2), App.Rotation())
add_polygon(sketch15, [(5.3, 7.6), (-5.3, 7.6), (-5.3, 15.6), (0, 15.6), (0, 18.1), (2, 18.1), (2, 15.6), (5.3, 15.6)])  # lines 0-7
sketch15.addConstraint([
    Sketcher.Constraint("Horizontal", 0),
    Sketcher.Constraint("Vertical", 1),
    Sketcher.Constraint("Horizontal", 2),
    Sketcher.Constraint("Vertical", 3),
    Sketcher.Constraint("Horizontal", 4),
    Sketcher.Constraint("Vertical", 5),
    Sketcher.Constraint("Horizontal", 6),
    Sketcher.Constraint("Vertical", 7),
    Sketcher.Constraint("Symmetric", 1, 2, 6, 2, -2),
    Sketcher.Constraint("PointOnObject", 2, 2, -2),
    Sketcher.Constraint("DistanceX", 4, 1, 4, 2, 2.0),
    Sketcher.Constraint("DistanceY", 1, 1, 1, 2, 8.0),
    Sketcher.Constraint("DistanceX", 0, 2, 0, 1, 10.6),
    Sketcher.Constraint("DistanceY", 3, 1, 3, 2, 2.5),
    Sketcher.Constraint("DistanceY", -1, 1, 0, 2, 7.6),
])
pocket9 = doc.addObject("PartDesign::Pocket", "Pocket008")
body.addObject(pocket9)
pocket9.Profile = sketch15
pocket9.Length = 10
pocket9.Reversed = True

# Sketch on YZ plane
sketch16 = doc.addObject("Sketcher::SketchObject", "Sketch015")
body.addObject(sketch16)
sketch16.AttachmentSupport = (doc.YZ_Plane, [""])
sketch16.MapMode = "FlatFace"
sketch16.AttachmentOffset = App.Placement(V(0, 0, -52.2), App.Rotation())
add_polygon(sketch16, [(-4.9, 7.6), (-15.5, 7.6), (-15.5, 15.6), (-10.6, 15.6), (-10.6, 18.1), (-8.6, 18.1), (-8.6, 15.6), (-4.9, 15.6)])  # lines 0-7
sketch16.addConstraint([
    Sketcher.Constraint("Horizontal", 0),
    Sketcher.Constraint("Vertical", 1),
    Sketcher.Constraint("Horizontal", 2),
    Sketcher.Constraint("Vertical", 3),
    Sketcher.Constraint("Horizontal", 4),
    Sketcher.Constraint("Vertical", 5),
    Sketcher.Constraint("Horizontal", 6),
    Sketcher.Constraint("Vertical", 7),
    Sketcher.Constraint("Horizontal", 2, 2, 5, 2),
    Sketcher.Constraint("DistanceX", 4, 1, 4, 2, 2.0),
    Sketcher.Constraint("DistanceY", 1, 1, 1, 2, 8.0),
    Sketcher.Constraint("DistanceX", 0, 2, 0, 1, 10.6),
    Sketcher.Constraint("DistanceX", 2, 1, 2, 2, 4.9),
    Sketcher.Constraint("DistanceY", 3, 1, 3, 2, 2.5),
    Sketcher.Constraint("DistanceY", -1, 1, 0, 2, 7.6),
    Sketcher.Constraint("DistanceX", 0, 2, -1, 1, 15.46),
])
pocket10 = doc.addObject("PartDesign::Pocket", "Pocket009")
body.addObject(pocket10)
pocket10.Profile = sketch16
pocket10.Length = 10
pocket10.Reversed = True

# Sketch on YZ plane
sketch17 = doc.addObject("Sketcher::SketchObject", "Sketch016")
body.addObject(sketch17)
sketch17.AttachmentSupport = (doc.YZ_Plane, [""])
sketch17.MapMode = "FlatFace"
sketch17.AttachmentOffset = App.Placement(V(0, 0, -52.2), App.Rotation())
add_polygon(sketch17, [(-15, 7.6), (-25.6, 7.6), (-25.6, 15.6), (-20.7, 15.6), (-20.7, 18.1), (-18.7, 18.1), (-18.7, 15.6), (-15, 15.6)])  # lines 0-7
sketch17.addConstraint([
    Sketcher.Constraint("Horizontal", 0),
    Sketcher.Constraint("Vertical", 1),
    Sketcher.Constraint("Horizontal", 2),
    Sketcher.Constraint("Vertical", 3),
    Sketcher.Constraint("Horizontal", 4),
    Sketcher.Constraint("Vertical", 5),
    Sketcher.Constraint("Horizontal", 6),
    Sketcher.Constraint("Vertical", 7),
    Sketcher.Constraint("Horizontal", 2, 2, 5, 2),
    Sketcher.Constraint("DistanceX", 4, 1, 4, 2, 2.0),
    Sketcher.Constraint("DistanceY", 1, 1, 1, 2, 8.0),
    Sketcher.Constraint("DistanceX", 0, 2, 0, 1, 10.6),
    Sketcher.Constraint("DistanceX", 2, 1, 2, 2, 4.9),
    Sketcher.Constraint("DistanceY", 3, 1, 3, 2, 2.5),
    Sketcher.Constraint("DistanceY", -1, 1, 0, 2, 7.6),
    Sketcher.Constraint("DistanceX", 0, 2, -1, 1, 25.62),
])
pocket11 = doc.addObject("PartDesign::Pocket", "Pocket010")
body.addObject(pocket11)
pocket11.Profile = sketch17
pocket11.Length = 10
pocket11.Reversed = True

# Sketch on XY plane
sketch18 = doc.addObject("Sketcher::SketchObject", "Sketch017")
body.addObject(sketch18)
sketch18.AttachmentSupport = (doc.XY_Plane, [""])
sketch18.MapMode = "FlatFace"
sketch18.AttachmentOffset = App.Placement(V(0, 0, 2), App.Rotation())
sketch18.addGeometry([
    Part.Circle(V(-40, 15, 0), V(0, 0, 1), 2),
    Part.Circle(V(40, 15, 0), V(0, 0, 1), 2),
    Part.Circle(V(40, -15, 0), V(0, 0, 1), 2),
    Part.Circle(V(-40, -15, 0), V(0, 0, 1), 2),
], False)
sketch18.addConstraint([
    Sketcher.Constraint("Equal", 0, 1),
    Sketcher.Constraint("Equal", 1, 2),
    Sketcher.Constraint("Equal", 2, 3),
    Sketcher.Constraint("Symmetric", 0, 3, 2, 3, -1, 1),
    Sketcher.Constraint("Symmetric", 1, 3, 3, 3, -1, 1),
    Sketcher.Constraint("Symmetric", 0, 3, 1, 3, -2),
    Sketcher.Constraint("Diameter", 0, 4.0),
    Sketcher.Constraint("DistanceX", 0, 3, -1, 1, 40.0),
    Sketcher.Constraint("DistanceY", -1, 1, 0, 3, 15.0),
])
pocket12 = doc.addObject("PartDesign::Pocket", "Pocket011")
body.addObject(pocket12)
pocket12.Profile = sketch18
pocket12.Length = 5
doc.recompute()

chamfer6 = doc.addObject("PartDesign::Chamfer", "Chamfer005")
body.addObject(chamfer6)
chamfer6.Base = (pocket12, edges_at(pocket12, [
    (-42, 15, 2),
    (38, 15, 2),
    (38, -15, 2),
    (-42, -15, 2),
]))
chamfer6.Size = 1.5

doc.recompute()
